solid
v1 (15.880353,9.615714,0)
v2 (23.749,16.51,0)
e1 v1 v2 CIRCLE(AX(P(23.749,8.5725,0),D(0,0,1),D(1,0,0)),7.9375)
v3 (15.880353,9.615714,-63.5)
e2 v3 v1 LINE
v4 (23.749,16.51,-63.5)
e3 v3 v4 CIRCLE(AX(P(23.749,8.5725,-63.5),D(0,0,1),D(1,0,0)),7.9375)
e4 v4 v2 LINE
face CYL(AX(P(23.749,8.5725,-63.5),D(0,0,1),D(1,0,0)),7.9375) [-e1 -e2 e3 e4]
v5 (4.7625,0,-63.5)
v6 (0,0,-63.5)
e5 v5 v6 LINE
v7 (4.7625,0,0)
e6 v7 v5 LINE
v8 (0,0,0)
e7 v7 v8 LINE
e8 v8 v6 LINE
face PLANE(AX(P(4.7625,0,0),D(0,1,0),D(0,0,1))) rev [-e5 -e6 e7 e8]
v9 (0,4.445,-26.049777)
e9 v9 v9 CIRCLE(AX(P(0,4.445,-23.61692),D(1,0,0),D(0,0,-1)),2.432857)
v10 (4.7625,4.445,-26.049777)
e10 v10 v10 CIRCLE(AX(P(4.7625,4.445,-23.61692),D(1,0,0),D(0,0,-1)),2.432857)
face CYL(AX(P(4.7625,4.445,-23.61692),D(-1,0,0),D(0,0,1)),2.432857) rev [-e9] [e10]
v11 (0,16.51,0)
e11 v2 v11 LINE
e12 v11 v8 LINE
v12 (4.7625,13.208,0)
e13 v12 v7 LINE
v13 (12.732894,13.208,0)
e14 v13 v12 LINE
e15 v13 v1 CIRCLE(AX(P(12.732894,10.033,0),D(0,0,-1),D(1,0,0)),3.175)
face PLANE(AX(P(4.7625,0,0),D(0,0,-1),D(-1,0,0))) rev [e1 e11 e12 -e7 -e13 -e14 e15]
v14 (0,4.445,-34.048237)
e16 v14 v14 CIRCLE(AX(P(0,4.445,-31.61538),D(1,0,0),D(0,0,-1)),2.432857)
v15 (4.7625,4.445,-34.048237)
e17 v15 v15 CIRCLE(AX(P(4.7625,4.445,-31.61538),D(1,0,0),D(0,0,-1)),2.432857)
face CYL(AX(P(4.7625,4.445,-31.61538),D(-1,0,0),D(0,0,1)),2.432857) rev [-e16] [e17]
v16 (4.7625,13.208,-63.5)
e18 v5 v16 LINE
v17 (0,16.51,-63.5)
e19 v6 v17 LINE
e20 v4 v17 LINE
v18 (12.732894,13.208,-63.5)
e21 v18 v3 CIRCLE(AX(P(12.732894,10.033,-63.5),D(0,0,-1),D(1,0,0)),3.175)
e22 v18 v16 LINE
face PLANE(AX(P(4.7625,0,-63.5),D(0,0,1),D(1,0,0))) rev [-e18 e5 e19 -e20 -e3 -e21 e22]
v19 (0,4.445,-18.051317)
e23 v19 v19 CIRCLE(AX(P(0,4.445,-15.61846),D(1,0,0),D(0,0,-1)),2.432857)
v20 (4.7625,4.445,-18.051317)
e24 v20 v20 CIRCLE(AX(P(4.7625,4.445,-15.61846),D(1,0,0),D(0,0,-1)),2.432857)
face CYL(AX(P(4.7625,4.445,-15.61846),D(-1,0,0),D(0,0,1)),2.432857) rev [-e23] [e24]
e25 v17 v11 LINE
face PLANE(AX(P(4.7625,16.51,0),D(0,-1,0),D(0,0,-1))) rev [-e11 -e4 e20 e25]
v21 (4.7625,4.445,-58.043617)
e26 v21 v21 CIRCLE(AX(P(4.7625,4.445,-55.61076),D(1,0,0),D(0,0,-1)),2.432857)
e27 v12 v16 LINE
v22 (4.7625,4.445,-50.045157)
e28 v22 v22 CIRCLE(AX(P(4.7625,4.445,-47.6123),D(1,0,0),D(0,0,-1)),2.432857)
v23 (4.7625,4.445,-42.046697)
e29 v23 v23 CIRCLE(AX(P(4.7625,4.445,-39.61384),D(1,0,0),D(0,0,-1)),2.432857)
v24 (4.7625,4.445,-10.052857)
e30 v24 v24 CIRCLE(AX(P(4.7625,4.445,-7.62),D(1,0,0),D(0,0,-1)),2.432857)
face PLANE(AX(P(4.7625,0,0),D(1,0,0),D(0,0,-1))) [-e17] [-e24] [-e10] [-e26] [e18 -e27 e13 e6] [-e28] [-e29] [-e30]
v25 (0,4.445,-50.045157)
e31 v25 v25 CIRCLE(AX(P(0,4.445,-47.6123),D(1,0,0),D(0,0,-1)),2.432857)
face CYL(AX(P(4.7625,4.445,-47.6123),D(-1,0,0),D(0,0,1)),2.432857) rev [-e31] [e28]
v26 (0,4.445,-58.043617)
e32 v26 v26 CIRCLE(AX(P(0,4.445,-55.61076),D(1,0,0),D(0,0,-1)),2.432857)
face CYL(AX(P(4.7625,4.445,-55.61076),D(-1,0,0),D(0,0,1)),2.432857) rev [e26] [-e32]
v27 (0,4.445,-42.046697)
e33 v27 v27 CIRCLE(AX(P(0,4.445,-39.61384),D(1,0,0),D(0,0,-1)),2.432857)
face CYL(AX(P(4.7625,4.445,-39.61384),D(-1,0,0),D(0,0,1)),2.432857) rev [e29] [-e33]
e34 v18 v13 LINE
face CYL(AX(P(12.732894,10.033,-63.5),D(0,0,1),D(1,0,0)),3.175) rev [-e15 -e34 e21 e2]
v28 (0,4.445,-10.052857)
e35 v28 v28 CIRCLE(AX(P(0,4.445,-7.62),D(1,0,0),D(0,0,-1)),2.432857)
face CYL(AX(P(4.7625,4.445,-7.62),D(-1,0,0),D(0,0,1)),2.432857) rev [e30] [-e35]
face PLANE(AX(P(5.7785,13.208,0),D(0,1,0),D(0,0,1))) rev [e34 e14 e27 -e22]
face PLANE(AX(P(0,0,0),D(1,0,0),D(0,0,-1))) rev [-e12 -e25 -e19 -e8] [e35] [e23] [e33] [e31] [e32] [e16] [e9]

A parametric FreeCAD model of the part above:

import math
import FreeCAD as App
import Part
import Sketcher

V = App.Vector
Q = App.Units.Quantity

doc = App.newDocument("Part")
body = doc.addObject("PartDesign::Body", "Body")

# Sketch on YZ plane
sketch1 = body.newObject("Sketcher::SketchObject", "Sketch")
sketch1.AttachmentSupport = (doc.getObject("YZ_Plane"), [""])
sketch1.MapMode = "FlatFace"
sketch1.addGeometry(Part.LineSegment(V(0, 0, 0), V(0, -63.5, 0)), False)
sketch1.addGeometry(Part.LineSegment(V(0, -63.5, 0), V(16.51, -63.5, 0)), False)
sketch1.addGeometry(Part.LineSegment(V(16.51, -63.5, 0), V(16.51, 0, 0)), False)
sketch1.addGeometry(Part.LineSegment(V(16.51, 0, 0), V(0, 0, 0)), False)
sketch1.addGeometry(Part.Circle(V(4.445, -55.61076, 0), V(0, 0, 1), 2.432857), False)
sketch1.addGeometry(Part.Circle(V(4.445, -47.6123, 0), V(0, 0, 1), 2.432857), False)
sketch1.addGeometry(Part.Circle(V(4.445, -39.61384, 0), V(0, 0, 1), 2.432857), False)
sketch1.addGeometry(Part.Circle(V(4.445, -31.61538, 0), V(0, 0, 1), 2.432857), False)
sketch1.addGeometry(Part.Circle(V(4.445, -23.61692, 0), V(0, 0, 1), 2.432857), False)
sketch1.addGeometry(Part.Circle(V(4.445, -15.61846, 0), V(0, 0, 1), 2.432857), False)
sketch1.addGeometry(Part.Circle(V(4.445, -7.62, 0), V(0, 0, 1), 2.432857), False)
sketch1.addConstraint(Sketcher.Constraint("Coincident", 0, 2, 1, 1))
sketch1.addConstraint(Sketcher.Constraint("Coincident", 1, 2, 2, 1))
sketch1.addConstraint(Sketcher.Constraint("Coincident", 2, 2, 3, 1))
sketch1.addConstraint(Sketcher.Constraint("Coincident", 3, 2, 0, 1))
sketch1.addConstraint(Sketcher.Constraint("Vertical", 0))
sketch1.addConstraint(Sketcher.Constraint("Horizontal", 1))
sketch1.addConstraint(Sketcher.Constraint("Vertical", 2))
sketch1.addConstraint(Sketcher.Constraint("Horizontal", 3))
sketch1.addConstraint(Sketcher.Constraint("Coincident", 3, 2, -1, 1))
sketch1.addConstraint(Sketcher.Constraint("Equal", 4, 5))
sketch1.addConstraint(Sketcher.Constraint("Equal", 5, 6))
sketch1.addConstraint(Sketcher.Constraint("Equal", 6, 7))
sketch1.addConstraint(Sketcher.Constraint("Equal", 7, 8))
sketch1.addConstraint(Sketcher.Constraint("Equal", 8, 9))
sketch1.addConstraint(Sketcher.Constraint("Equal", 9, 10))
sketch1.addConstraint(Sketcher.Constraint("Vertical", 4, 3, 5, 3))
sketch1.addConstraint(Sketcher.Constraint("Vertical", 5, 3, 6, 3))
sketch1.addConstraint(Sketcher.Constraint("Vertical", 6, 3, 7, 3))
sketch1.addConstraint(Sketcher.Constraint("Vertical", 7, 3, 8, 3))
sketch1.addConstraint(Sketcher.Constraint("Vertical", 8, 3, 9, 3))
sketch1.addConstraint(Sketcher.Constraint("Vertical", 9, 3, 10, 3))
sketch1.addConstraint(Sketcher.Constraint("DistanceY", 0, 2, 0, 1, Q("2.5 in")))
sketch1.addConstraint(Sketcher.Constraint("DistanceX", 1, 1, 1, 2, Q("0.65 in")))
sketch1.addConstraint(Sketcher.Constraint("DistanceY", 10, 3, -1, 1, Q("0.3 in")))
sketch1.addConstraint(Sketcher.Constraint("DistanceX", -1, 1, 4, 3, Q("0.175 in")))
sketch1.addConstraint(Sketcher.Constraint("Diameter", 4, Q("4.865713 mm")))
sketch1.addConstraint(Sketcher.Constraint("DistanceY", 4, 3, -1, 1, Q("2.1894 in")))
sketch1.addConstraint(Sketcher.Constraint("DistanceY", 5, 3, -1, 1, Q("1.8745 in")))
sketch1.addConstraint(Sketcher.Constraint("DistanceY", 6, 3, -1, 1, Q("1.5596 in")))
sketch1.addConstraint(Sketcher.Constraint("DistanceY", 7, 3, -1, 1, Q("1.2447 in")))
sketch1.addConstraint(Sketcher.Constraint("DistanceY", 8, 3, -1, 1, Q("0.9298 in")))
sketch1.addConstraint(Sketcher.Constraint("DistanceY", 9, 3, -1, 1, Q("0.6149 in")))
pad1 = body.newObject("PartDesign::Pad", "Pad")
pad1.Profile = sketch1
pad1.Length = Q("0.1875 in")

# Sketch on YZ plane
sketch2 = body.newObject("Sketcher::SketchObject", "Sketch001")
sketch2.AttachmentSupport = (doc.getObject("YZ_Plane"), [""])
sketch2.MapMode = "FlatFace"
sketch2.AttachmentOffset = App.Placement(V(0, 0, 0.1875 * 25.4), App.Rotation())
sketch2.addGeometry(Part.LineSegment(V(16.51, 0, 0), V(13.208, 0, 0)), False)
sketch2.addGeometry(Part.LineSegment(V(13.208, 0, 0), V(13.208, -63.5, 0)), False)
sketch2.addGeometry(Part.LineSegment(V(13.208, -63.5, 0), V(16.51, -63.5, 0)), False)
sketch2.addGeometry(Part.LineSegment(V(16.51, -63.5, 0), V(16.51, 0, 0)), False)
sketch2.addConstraint(Sketcher.Constraint("Coincident", 0, 2, 1, 1))
sketch2.addConstraint(Sketcher.Constraint("Coincident", 1, 2, 2, 1))
sketch2.addConstraint(Sketcher.Constraint("Coincident", 2, 2, 3, 1))
sketch2.addConstraint(Sketcher.Constraint("Coincident", 3, 2, 0, 1))
sketch2.addConstraint(Sketcher.Constraint("Horizontal", 0))
sketch2.addConstraint(Sketcher.Constraint("Vertical", 1))
sketch2.addConstraint(Sketcher.Constraint("Horizontal", 2))
sketch2.addConstraint(Sketcher.Constraint("Vertical", 3))
sketch2.addConstraint(Sketcher.Constraint("PointOnObject", 0, 2, -1))
sketch2.addConstraint(Sketcher.Constraint("DistanceY", 1, 2, 1, 1, Q("2.5 in")))
sketch2.addConstraint(Sketcher.Constraint("DistanceX", 0, 2, 0, 1, Q("0.13 in")))
sketch2.addConstraint(Sketcher.Constraint("DistanceX", -1, 1, 0, 2, Q("0.52 in")))
pad2 = body.newObject("PartDesign::Pad", "Pad001")
pad2.Profile = sketch2
pad2.Length = Q("0.04 in")

# Sketch on XY plane
sketch3 = body.newObject("Sketcher::SketchObject", "Sketch002")
sketch3.AttachmentSupport = (doc.getObject("XY_Plane"), [""])
sketch3.MapMode = "FlatFace"
sketch3.addGeometry(Part.LineSegment(V(23.749, 16.51, 0), V(5.7785, 16.51, 0)), False)
sketch3.addGeometry(Part.LineSegment(V(5.7785, 16.51, 0), V(5.7785, 13.208, 0)), False)
sketch3.addGeometry(Part.LineSegment(V(5.7785, 13.208, 0), V(12.732894, 13.208, 0)), False)
sketch3.addGeometry(Part.ArcOfCircle(Part.Circle(V(12.732894, 10.033, 0), V(0, 0, 1), 3.175), math.radians(-7.552152), math.radians(90)), False)
sketch3.addGeometry(Part.ArcOfCircle(Part.Circle(V(23.749, 8.5725, 0), V(0, 0, 1), 7.9375), math.radians(172.447848), math.radians(450)), False)
sketch3.addConstraint(Sketcher.Constraint("Coincident", 0, 2, 1, 1))
sketch3.addConstraint(Sketcher.Constraint("Coincident", 1, 2, 2, 1))
sketch3.addConstraint(Sketcher.Constraint("Tangent", 2, 2, 3, 2))
sketch3.addConstraint(Sketcher.Constraint("Tangent", 3, 1, 4, 1))
sketch3.addConstraint(Sketcher.Constraint("Tangent", 4, 2, 0, 1))
sketch3.addConstraint(Sketcher.Constraint("Horizontal", 0))
sketch3.addConstraint(Sketcher.Constraint("Vertical", 1))
sketch3.addConstraint(Sketcher.Constraint("Horizontal", 2))
sketch3.addConstraint(Sketcher.Constraint("Radius", 3, Q("0.125 in")))
sketch3.addConstraint(Sketcher.Constraint("Radius", 4, Q("0.3125 in")))
sketch3.addConstraint(Sketcher.Constraint("DistanceY", 1, 2, 1, 1, Q("0.13 in")))
sketch3.addConstraint(Sketcher.Constraint("DistanceY", -1, 1, 0, 2, Q("0.65 in")))
sketch3.addConstraint(Sketcher.Constraint("DistanceX", 0, 2, 0, 1, Q("0.7075 in")))
sketch3.addConstraint(Sketcher.Constraint("DistanceX", -1, 1, 4, 3, Q("0.935 in")))
pad3 = body.newObject("PartDesign::Pad", "Pad002")
pad3.Profile = sketch3
pad3.Length = Q("2.5 in")
pad3.Reversed = True

doc.recompute()
